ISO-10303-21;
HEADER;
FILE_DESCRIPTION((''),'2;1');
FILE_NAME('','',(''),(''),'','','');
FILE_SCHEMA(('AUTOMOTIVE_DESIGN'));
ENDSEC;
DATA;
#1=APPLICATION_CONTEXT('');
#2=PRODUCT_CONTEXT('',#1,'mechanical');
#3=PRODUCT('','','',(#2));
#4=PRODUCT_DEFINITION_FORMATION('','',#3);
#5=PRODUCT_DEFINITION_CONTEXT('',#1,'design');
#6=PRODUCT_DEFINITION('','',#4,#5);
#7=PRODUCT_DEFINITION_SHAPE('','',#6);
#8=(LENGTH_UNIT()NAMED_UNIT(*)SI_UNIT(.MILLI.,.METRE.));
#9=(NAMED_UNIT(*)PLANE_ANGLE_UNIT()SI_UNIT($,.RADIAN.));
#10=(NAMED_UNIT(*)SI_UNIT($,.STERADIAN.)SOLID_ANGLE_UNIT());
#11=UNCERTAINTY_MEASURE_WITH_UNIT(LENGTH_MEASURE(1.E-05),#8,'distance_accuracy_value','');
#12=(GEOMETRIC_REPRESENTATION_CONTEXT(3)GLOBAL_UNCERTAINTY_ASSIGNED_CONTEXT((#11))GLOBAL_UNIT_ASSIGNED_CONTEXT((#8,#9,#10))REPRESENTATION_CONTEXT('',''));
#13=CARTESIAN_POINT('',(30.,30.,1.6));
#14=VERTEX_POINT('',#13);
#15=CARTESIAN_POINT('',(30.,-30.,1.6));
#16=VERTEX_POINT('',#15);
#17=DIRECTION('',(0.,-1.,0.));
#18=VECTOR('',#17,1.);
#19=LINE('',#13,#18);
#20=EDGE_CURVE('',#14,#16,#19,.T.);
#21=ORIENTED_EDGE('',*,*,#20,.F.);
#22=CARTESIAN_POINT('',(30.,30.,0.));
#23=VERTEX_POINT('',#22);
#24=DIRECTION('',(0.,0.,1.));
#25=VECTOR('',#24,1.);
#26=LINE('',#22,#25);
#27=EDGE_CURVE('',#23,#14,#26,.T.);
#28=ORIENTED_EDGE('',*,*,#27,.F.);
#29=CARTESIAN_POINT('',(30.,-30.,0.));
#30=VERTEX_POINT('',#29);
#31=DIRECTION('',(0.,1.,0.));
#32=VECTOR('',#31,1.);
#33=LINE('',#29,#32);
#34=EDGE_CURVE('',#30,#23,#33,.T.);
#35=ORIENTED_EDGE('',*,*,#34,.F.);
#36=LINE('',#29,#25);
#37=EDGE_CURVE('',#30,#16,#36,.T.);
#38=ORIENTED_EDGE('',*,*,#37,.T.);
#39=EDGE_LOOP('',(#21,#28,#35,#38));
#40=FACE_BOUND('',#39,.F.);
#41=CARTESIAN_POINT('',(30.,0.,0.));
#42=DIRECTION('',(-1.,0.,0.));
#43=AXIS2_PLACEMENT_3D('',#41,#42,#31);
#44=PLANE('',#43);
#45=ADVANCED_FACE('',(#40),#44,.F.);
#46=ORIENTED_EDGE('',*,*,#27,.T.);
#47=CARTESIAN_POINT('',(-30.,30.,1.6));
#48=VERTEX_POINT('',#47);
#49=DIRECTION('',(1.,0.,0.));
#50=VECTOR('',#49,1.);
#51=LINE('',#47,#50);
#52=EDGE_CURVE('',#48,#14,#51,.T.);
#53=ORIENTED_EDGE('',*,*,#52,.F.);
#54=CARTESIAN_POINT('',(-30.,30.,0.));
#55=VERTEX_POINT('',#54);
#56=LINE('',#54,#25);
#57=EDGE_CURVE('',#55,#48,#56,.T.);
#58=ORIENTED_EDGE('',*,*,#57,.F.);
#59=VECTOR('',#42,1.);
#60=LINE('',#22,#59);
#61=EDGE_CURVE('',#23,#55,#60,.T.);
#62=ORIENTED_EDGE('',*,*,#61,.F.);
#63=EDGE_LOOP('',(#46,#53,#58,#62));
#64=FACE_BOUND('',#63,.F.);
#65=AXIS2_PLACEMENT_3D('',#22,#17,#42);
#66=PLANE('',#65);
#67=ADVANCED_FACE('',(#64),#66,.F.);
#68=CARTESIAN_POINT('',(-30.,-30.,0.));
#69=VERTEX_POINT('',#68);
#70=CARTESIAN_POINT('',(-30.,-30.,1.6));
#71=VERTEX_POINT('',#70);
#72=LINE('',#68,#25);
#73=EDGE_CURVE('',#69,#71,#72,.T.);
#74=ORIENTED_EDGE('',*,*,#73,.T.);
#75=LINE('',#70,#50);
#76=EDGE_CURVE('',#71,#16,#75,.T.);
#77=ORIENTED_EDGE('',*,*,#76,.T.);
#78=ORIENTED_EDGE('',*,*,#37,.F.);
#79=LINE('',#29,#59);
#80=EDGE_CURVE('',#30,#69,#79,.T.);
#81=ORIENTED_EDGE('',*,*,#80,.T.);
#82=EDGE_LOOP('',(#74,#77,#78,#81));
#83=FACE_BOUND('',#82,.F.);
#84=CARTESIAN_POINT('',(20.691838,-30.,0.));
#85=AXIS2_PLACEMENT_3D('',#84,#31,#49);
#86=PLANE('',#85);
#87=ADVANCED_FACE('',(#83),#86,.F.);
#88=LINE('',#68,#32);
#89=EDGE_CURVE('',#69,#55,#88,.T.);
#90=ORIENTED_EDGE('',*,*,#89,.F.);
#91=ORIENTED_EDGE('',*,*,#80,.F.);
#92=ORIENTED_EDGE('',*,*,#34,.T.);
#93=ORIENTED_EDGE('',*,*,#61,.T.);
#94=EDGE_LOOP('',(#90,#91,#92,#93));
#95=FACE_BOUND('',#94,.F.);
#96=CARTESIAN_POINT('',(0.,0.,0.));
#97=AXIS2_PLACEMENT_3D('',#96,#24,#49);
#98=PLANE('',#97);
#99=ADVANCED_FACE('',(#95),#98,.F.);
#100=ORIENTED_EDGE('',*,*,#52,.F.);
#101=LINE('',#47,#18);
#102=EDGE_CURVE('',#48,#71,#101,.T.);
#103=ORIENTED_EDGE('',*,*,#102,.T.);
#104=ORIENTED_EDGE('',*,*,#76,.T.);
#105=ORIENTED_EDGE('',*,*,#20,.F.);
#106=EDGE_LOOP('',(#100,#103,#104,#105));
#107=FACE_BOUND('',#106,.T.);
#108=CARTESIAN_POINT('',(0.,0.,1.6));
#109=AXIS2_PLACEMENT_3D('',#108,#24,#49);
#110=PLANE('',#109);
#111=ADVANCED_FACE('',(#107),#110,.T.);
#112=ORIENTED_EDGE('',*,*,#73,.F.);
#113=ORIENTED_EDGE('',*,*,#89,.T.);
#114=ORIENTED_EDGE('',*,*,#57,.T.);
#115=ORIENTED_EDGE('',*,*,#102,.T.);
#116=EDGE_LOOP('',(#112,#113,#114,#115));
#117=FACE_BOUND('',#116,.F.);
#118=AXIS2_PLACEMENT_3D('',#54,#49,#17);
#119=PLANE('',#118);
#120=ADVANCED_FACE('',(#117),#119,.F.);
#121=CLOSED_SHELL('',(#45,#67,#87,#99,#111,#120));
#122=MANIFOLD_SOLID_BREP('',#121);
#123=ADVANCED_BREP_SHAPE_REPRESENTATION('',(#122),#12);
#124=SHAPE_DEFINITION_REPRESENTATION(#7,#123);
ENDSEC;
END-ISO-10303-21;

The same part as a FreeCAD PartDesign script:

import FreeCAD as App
import Part
import Sketcher

V = App.Vector
Q = App.Units.Quantity

doc = App.newDocument("Part")
body = doc.addObject("PartDesign::Body", "Body")

sketch1 = doc.addObject("Sketcher::SketchObject", "Sketch")
body.addObject(sketch1)
sketch1.AttachmentSupport = (doc.XY_Plane, [""])
sketch1.MapMode = "FlatFace"
sketch1.addGeometry([
    Part.LineSegment(V(30, 30, 0), V(-30, 30, 0)),
    Part.LineSegment(V(-30, 30, 0), V(-30, -30, 0)),
    Part.LineSegment(V(-30, -30, 0), V(30, -30, 0)),
    Part.LineSegment(V(30, -30, 0), V(30, 30, 0)),
], False)
sketch1.addConstraint([
    Sketcher.Constraint("Coincident", 0, 2, 1, 1),
    Sketcher.Constraint("Coincident", 1, 2, 2, 1),
    Sketcher.Constraint("Coincident", 2, 2, 3, 1),
    Sketcher.Constraint("Coincident", 3, 2, 0, 1),
    Sketcher.Constraint("Horizontal", 0),
    Sketcher.Constraint("Vertical", 1),
    Sketcher.Constraint("Horizontal", 2),
    Sketcher.Constraint("Vertical", 3),
    Sketcher.Constraint("Symmetric", 0, 2, 2, 2, -1, 1),
    Sketcher.Constraint("Equal", 2, 1),
    Sketcher.Constraint("DistanceX", 0, 2, 0, 1, Q("2.3622 in")),
])
pad1 = doc.addObject("PartDesign::Pad", "Pad")
body.addObject(pad1)
pad1.Profile = sketch1
pad1.Length = Q("0.0629921 in")

doc.recompute()
